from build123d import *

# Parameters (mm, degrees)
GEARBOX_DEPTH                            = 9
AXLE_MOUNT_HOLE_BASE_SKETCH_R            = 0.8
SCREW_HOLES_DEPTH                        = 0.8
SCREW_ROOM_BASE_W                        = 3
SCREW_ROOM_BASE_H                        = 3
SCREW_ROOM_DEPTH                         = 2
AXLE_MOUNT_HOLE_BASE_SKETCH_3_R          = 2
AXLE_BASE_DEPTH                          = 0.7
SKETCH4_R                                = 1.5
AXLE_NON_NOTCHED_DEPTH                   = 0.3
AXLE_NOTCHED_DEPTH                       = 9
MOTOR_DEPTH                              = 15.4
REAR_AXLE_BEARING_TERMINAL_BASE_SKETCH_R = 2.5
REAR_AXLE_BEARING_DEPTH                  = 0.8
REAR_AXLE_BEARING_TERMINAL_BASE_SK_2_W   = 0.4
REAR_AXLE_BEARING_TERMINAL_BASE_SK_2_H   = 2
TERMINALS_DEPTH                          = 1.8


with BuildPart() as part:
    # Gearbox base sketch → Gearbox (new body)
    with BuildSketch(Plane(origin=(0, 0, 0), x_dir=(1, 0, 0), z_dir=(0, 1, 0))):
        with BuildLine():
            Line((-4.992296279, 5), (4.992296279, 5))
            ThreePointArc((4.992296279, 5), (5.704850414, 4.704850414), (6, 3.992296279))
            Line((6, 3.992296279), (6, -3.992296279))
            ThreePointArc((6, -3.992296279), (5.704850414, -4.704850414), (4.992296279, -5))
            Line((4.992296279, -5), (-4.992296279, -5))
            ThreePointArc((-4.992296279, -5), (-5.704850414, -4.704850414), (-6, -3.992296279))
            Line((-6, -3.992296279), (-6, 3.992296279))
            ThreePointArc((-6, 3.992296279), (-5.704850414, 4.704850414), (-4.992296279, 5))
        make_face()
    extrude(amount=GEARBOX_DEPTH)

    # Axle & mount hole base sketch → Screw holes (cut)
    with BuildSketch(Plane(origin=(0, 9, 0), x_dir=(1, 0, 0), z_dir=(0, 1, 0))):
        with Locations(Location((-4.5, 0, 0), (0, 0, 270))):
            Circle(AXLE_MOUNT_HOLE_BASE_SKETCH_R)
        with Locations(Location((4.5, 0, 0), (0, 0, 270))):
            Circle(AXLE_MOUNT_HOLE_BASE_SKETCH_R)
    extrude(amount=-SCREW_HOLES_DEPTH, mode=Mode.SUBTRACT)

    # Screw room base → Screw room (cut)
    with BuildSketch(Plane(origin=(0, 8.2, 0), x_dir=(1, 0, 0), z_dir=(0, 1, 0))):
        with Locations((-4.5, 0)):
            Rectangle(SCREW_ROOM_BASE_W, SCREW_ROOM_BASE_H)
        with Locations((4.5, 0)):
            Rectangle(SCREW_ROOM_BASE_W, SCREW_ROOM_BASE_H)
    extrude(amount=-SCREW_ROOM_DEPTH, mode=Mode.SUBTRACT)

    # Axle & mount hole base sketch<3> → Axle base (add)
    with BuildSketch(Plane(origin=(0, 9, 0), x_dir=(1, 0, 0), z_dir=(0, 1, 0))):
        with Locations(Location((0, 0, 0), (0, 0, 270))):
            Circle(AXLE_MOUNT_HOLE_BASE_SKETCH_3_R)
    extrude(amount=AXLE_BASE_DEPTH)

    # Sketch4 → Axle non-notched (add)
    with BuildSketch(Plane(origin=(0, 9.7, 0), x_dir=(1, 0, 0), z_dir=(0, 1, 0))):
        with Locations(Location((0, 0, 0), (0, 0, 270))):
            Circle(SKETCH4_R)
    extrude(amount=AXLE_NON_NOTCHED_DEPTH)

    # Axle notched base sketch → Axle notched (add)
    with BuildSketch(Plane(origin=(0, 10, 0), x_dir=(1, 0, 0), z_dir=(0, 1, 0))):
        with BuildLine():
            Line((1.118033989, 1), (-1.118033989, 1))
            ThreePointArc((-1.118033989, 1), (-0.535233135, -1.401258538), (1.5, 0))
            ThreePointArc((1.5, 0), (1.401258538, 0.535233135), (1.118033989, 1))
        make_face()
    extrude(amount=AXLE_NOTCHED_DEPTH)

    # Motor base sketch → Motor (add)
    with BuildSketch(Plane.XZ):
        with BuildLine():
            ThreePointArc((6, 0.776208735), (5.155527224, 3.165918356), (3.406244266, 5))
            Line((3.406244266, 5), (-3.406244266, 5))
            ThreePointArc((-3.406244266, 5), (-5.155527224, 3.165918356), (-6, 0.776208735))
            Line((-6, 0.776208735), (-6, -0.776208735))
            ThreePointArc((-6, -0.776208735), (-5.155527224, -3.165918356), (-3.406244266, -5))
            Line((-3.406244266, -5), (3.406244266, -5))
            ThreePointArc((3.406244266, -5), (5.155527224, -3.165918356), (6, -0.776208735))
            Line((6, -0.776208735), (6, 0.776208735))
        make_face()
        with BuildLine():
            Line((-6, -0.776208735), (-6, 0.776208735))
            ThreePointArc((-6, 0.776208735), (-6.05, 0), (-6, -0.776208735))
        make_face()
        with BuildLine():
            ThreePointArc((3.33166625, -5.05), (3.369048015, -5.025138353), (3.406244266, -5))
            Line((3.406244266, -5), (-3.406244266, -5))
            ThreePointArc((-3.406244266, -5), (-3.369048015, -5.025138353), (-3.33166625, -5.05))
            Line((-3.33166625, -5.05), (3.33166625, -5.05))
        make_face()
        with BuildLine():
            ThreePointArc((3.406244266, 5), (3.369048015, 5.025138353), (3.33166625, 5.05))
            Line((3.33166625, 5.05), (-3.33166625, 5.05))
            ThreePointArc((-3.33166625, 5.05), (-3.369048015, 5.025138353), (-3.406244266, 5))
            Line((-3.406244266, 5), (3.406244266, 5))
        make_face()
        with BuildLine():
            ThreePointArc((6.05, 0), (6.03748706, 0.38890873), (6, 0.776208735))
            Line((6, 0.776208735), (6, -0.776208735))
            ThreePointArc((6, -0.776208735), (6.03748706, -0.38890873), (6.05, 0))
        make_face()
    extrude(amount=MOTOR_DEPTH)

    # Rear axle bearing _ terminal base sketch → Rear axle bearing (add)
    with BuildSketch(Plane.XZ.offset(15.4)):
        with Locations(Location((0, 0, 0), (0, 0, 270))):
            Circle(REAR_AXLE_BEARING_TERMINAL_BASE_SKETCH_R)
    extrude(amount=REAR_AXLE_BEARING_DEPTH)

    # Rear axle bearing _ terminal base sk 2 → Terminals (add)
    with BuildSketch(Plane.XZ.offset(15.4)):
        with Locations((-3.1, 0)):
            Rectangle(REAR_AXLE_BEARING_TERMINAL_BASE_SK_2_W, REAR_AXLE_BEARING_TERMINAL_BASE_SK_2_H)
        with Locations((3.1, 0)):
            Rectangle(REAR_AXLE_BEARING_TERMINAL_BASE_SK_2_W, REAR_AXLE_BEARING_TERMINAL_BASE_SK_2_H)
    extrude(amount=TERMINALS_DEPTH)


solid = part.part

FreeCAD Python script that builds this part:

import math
import FreeCAD as App
import Part
import Sketcher


def add_polygon(sketch, points):
    """Adds a closed chain of lines whose ends are joined by coincident constraints."""
    first, n = sketch.GeometryCount, len(points)
    for a, b in zip(points, points[1:] + points[:1]):
        sketch.addGeometry(Part.LineSegment(App.Vector(*a, 0), App.Vector(*b, 0)), False)
    for i in range(n):
        sketch.addConstraint(Sketcher.Constraint("Coincident", first + i, 2, first + (i + 1) % n, 1))

doc = App.newDocument("Part")
body = doc.addObject("PartDesign::Body", "Body")

# Sketch on XZ plane
sketch1 = doc.addObject("Sketcher::SketchObject", "Sketch")
body.addObject(sketch1)
sketch1.AttachmentSupport = (doc.XZ_Plane, [""])
sketch1.MapMode = "FlatFace"
sketch1.addGeometry(Part.LineSegment(App.Vector(4.992296, -5, 0), App.Vector(-4.992296, -5, 0)), False)
sketch1.addGeometry(Part.ArcOfCircle(Part.Circle(App.Vector(-4.992296, -3.992296, 0), App.Vector(0, 0, 1), 1.007704), math.radians(180), math.radians(270)), False)
sketch1.addGeometry(Part.LineSegment(App.Vector(-6, -3.992296, 0), App.Vector(-6, 3.992296, 0)), False)
sketch1.addGeometry(Part.ArcOfCircle(Part.Circle(App.Vector(-4.992296, 3.992296, 0), App.Vector(0, 0, 1), 1.007704), math.radians(90), math.radians(180)), False)
sketch1.addGeometry(Part.LineSegment(App.Vector(-4.992296, 5, 0), App.Vector(4.992296, 5, 0)), False)
sketch1.addGeometry(Part.ArcOfCircle(Part.Circle(App.Vector(4.992296, 3.992296, 0), App.Vector(0, 0, 1), 1.007704), math.radians(0), math.radians(90)), False)
sketch1.addGeometry(Part.LineSegment(App.Vector(6, 3.992296, 0), App.Vector(6, -3.992296, 0)), False)
sketch1.addGeometry(Part.ArcOfCircle(Part.Circle(App.Vector(4.992296, -3.992296, 0), App.Vector(0, 0, 1), 1.007704), math.radians(-90), math.radians(0)), False)
sketch1.addConstraint(Sketcher.Constraint("Tangent", 0, 2, 1, 2))
sketch1.addConstraint(Sketcher.Constraint("Tangent", 1, 1, 2, 1))
sketch1.addConstraint(Sketcher.Constraint("Tangent", 2, 2, 3, 2))
sketch1.addConstraint(Sketcher.Constraint("Tangent", 3, 1, 4, 1))
sketch1.addConstraint(Sketcher.Constraint("Tangent", 4, 2, 5, 2))
sketch1.addConstraint(Sketcher.Constraint("Tangent", 5, 1, 6, 1))
sketch1.addConstraint(Sketcher.Constraint("Tangent", 6, 2, 7, 2))
sketch1.addConstraint(Sketcher.Constraint("Tangent", 7, 1, 0, 1))
sketch1.addConstraint(Sketcher.Constraint("Horizontal", 0))
sketch1.addConstraint(Sketcher.Constraint("Vertical", 2))
sketch1.addConstraint(Sketcher.Constraint("Horizontal", 4))
sketch1.addConstraint(Sketcher.Constraint("Vertical", 6))
sketch1.addConstraint(Sketcher.Constraint("Equal", 1, 3))
sketch1.addConstraint(Sketcher.Constraint("Equal", 3, 5))
sketch1.addConstraint(Sketcher.Constraint("Equal", 5, 7))
sketch1.addConstraint(Sketcher.Constraint("Symmetric", 1, 3, 5, 3, -1, 1))
sketch1.addConstraint(Sketcher.Constraint("DistanceY", 0, 2, -1, 1, 5.0))
sketch1.addConstraint(Sketcher.Constraint("DistanceX", 1, 1, -1, 1, 6.0))
sketch1.addConstraint(Sketcher.Constraint("Radius", 1, 1.007704))
pad1 = doc.addObject("PartDesign::Pad", "Pad")
body.addObject(pad1)
pad1.Profile = sketch1
pad1.Length = 9
pad1.Reversed = True

# Sketch on XZ plane
sketch2 = doc.addObject("Sketcher::SketchObject", "Sketch001")
body.addObject(sketch2)
sketch2.AttachmentSupport = (doc.XZ_Plane, [""])
sketch2.MapMode = "FlatFace"
sketch2.AttachmentOffset = App.Placement(App.Vector(0, 0, -9), App.Rotation())
sketch2.addGeometry(Part.Circle(App.Vector(-4.5, 0, 0), App.Vector(0, 0, 1), 0.8), False)
sketch2.addGeometry(Part.Circle(App.Vector(4.5, 0, 0), App.Vector(0, 0, 1), 0.8), False)
sketch2.addConstraint(Sketcher.Constraint("Equal", 0, 1))
sketch2.addConstraint(Sketcher.Constraint("Symmetric", 0, 3, 1, 3, -1, 1))
sketch2.addConstraint(Sketcher.Constraint("PointOnObject", 0, 3, -1))
sketch2.addConstraint(Sketcher.Constraint("Diameter", 0, 1.6))
sketch2.addConstraint(Sketcher.Constraint("DistanceX", 0, 3, 1, 3, 9.0))
pocket1 = doc.addObject("PartDesign::Pocket", "Pocket")
body.addObject(pocket1)
pocket1.Profile = sketch2
pocket1.Length = 0.8
pocket1.Reversed = True

# Sketch on XZ plane
sketch3 = doc.addObject("Sketcher::SketchObject", "Sketch002")
body.addObject(sketch3)
sketch3.AttachmentSupport = (doc.XZ_Plane, [""])
sketch3.MapMode = "FlatFace"
sketch3.AttachmentOffset = App.Placement(App.Vector(0, 0, -8.2), App.Rotation())
add_polygon(sketch3, [(-6, -1.5), (-6, 1.5), (-3, 1.5), (-3, -1.5)])  # lines 0-3
add_polygon(sketch3, [(3, -1.5), (3, 1.5), (6, 1.5), (6, -1.5)])  # lines 4-7
sketch3.addConstraint(Sketcher.Constraint("Vertical", 0))
sketch3.addConstraint(Sketcher.Constraint("Horizontal", 1))
sketch3.addConstraint(Sketcher.Constraint("Vertical", 2))
sketch3.addConstraint(Sketcher.Constraint("Horizontal", 3))
sketch3.addConstraint(Sketcher.Constraint("Vertical", 4))
sketch3.addConstraint(Sketcher.Constraint("Horizontal", 5))
sketch3.addConstraint(Sketcher.Constraint("Vertical", 6))
sketch3.addConstraint(Sketcher.Constraint("Horizontal", 7))
sketch3.addConstraint(Sketcher.Constraint("Symmetric", 2, 2, 4, 2, -1, 1))
sketch3.addConstraint(Sketcher.Constraint("Symmetric", 0, 2, 6, 2, -1, 1))
sketch3.addConstraint(Sketcher.Constraint("Horizontal", 1, 2, 4, 2))
sketch3.addConstraint(Sketcher.Constraint("Equal", 7, 0))
sketch3.addConstraint(Sketcher.Constraint("DistanceX", 1, 1, 1, 2, 3.0))
sketch3.addConstraint(Sketcher.Constraint("DistanceX", 0, 2, -1, 1, 6.0))
pocket2 = doc.addObject("PartDesign::Pocket", "Pocket001")
body.addObject(pocket2)
pocket2.Profile = sketch3
pocket2.Length = 2
pocket2.Reversed = True

# Sketch on XZ plane
sketch4 = doc.addObject("Sketcher::SketchObject", "Sketch003")
body.addObject(sketch4)
sketch4.AttachmentSupport = (doc.XZ_Plane, [""])
sketch4.MapMode = "FlatFace"
sketch4.AttachmentOffset = App.Placement(App.Vector(0, 0, -9), App.Rotation())
sketch4.addGeometry(Part.Circle(App.Vector(0, 0, 0), App.Vector(0, 0, 1), 2), False)
sketch4.addConstraint(Sketcher.Constraint("Coincident", 0, 3, -1, 1))
sketch4.addConstraint(Sketcher.Constraint("Diameter", 0, 4.0))
pad2 = doc.addObject("PartDesign::Pad", "Pad001")
body.addObject(pad2)
pad2.Profile = sketch4
pad2.Length = 0.7
pad2.Reversed = True

# Sketch on XZ plane
sketch5 = doc.addObject("Sketcher::SketchObject", "Sketch004")
body.addObject(sketch5)
sketch5.AttachmentSupport = (doc.XZ_Plane, [""])
sketch5.MapMode = "FlatFace"
sketch5.AttachmentOffset = App.Placement(App.Vector(0, 0, -9.7), App.Rotation())
sketch5.addGeometry(Part.Circle(App.Vector(0, 0, 0), App.Vector(0, 0, 1), 1.5), False)
sketch5.addConstraint(Sketcher.Constraint("Coincident", 0, 3, -1, 1))
sketch5.addConstraint(Sketcher.Constraint("Diameter", 0, 3.0))
pad3 = doc.addObject("PartDesign::Pad", "Pad002")
body.addObject(pad3)
pad3.Profile = sketch5
pad3.Length = 0.3
pad3.Reversed = True

# Sketch on XZ plane
sketch6 = doc.addObject("Sketcher::SketchObject", "Sketch005")
body.addObject(sketch6)
sketch6.AttachmentSupport = (doc.XZ_Plane, [""])
sketch6.MapMode = "FlatFace"
sketch6.AttachmentOffset = App.Placement(App.Vector(0, 0, -10), App.Rotation())
sketch6.addGeometry(Part.LineSegment(App.Vector(1.118034, -1, 0), App.Vector(-1.118034, -1, 0)), False)
sketch6.addGeometry(Part.ArcOfCircle(Part.Circle(App.Vector(0, 0, 0), App.Vector(0, 0, 1), 1.5), math.radians(0), math.radians(221.810315)), False)
sketch6.addGeometry(Part.ArcOfCircle(Part.Circle(App.Vector(0, 0, 0), App.Vector(0, 0, 1), 1.5), math.radians(-41.810315), math.radians(0)), False)
sketch6.addConstraint(Sketcher.Constraint("Coincident", 0, 2, 1, 2))
sketch6.addConstraint(Sketcher.Constraint("Tangent", 1, 1, 2, 2))
sketch6.addConstraint(Sketcher.Constraint("Coincident", 2, 1, 0, 1))
sketch6.addConstraint(Sketcher.Constraint("Horizontal", 0))
sketch6.addConstraint(Sketcher.Constraint("Coincident", 1, 3, -1, 1))
sketch6.addConstraint(Sketcher.Constraint("Equal", 1, 2))
sketch6.addConstraint(Sketcher.Constraint("PointOnObject", 1, 1, -1))
sketch6.addConstraint(Sketcher.Constraint("Radius", 1, 1.5))
sketch6.addConstraint(Sketcher.Constraint("DistanceY", 0, 2, -1, 1, 1.0))
pad4 = doc.addObject("PartDesign::Pad", "Pad003")
body.addObject(pad4)
pad4.Profile = sketch6
pad4.Length = 9
pad4.Reversed = True

# Sketch on XZ plane
sketch7 = doc.addObject("Sketcher::SketchObject", "Sketch006")
body.addObject(sketch7)
sketch7.AttachmentSupport = (doc.XZ_Plane, [""])
sketch7.MapMode = "FlatFace"
sketch7.addGeometry(Part.ArcOfCircle(Part.Circle(App.Vector(0, 0, 0), App.Vector(0, 0, 1), 6.05), math.radians(7.371307), math.radians(55.735397)), False)
sketch7.addGeometry(Part.ArcOfCircle(Part.Circle(App.Vector(-0.000011, -0.000016, 0), App.Vector(0, 0, 1), 6.050019), math.radians(55.735398), math.radians(56.585729)), False)
sketch7.addGeometry(Part.LineSegment(App.Vector(3.331666, 5.05, 0), App.Vector(-3.331666, 5.05, 0)), False)
sketch7.addGeometry(Part.ArcOfCircle(Part.Circle(App.Vector(0.000011, -0.000016, 0), App.Vector(0, 0, 1), 6.050019), math.radians(123.414271), math.radians(124.264602)), False)
sketch7.addGeometry(Part.ArcOfCircle(Part.Circle(App.Vector(0, 0, 0), App.Vector(0, 0, 1), 6.05), math.radians(124.264603), math.radians(172.628693)), False)
sketch7.addGeometry(Part.ArcOfCircle(Part.Circle(App.Vector(0, 0, 0), App.Vector(0, 0, 1), 6.05), math.radians(172.628693), math.radians(187.371307)), False)
sketch7.addGeometry(Part.ArcOfCircle(Part.Circle(App.Vector(0, 0, 0), App.Vector(0, 0, 1), 6.05), math.radians(-172.628693), math.radians(-124.264603)), False)
sketch7.addGeometry(Part.ArcOfCircle(Part.Circle(App.Vector(0.000011, 0.000016, 0), App.Vector(0, 0, 1), 6.050019), math.radians(-124.264602), math.radians(-123.414271)), False)
sketch7.addGeometry(Part.LineSegment(App.Vector(-3.331666, -5.05, 0), App.Vector(3.331666, -5.05, 0)), False)
sketch7.addGeometry(Part.ArcOfCircle(Part.Circle(App.Vector(-0.000011, 0.000016, 0), App.Vector(0, 0, 1), 6.050019), math.radians(-56.585729), math.radians(-55.735398)), False)
sketch7.addGeometry(Part.ArcOfCircle(Part.Circle(App.Vector(0, 0, 0), App.Vector(0, 0, 1), 6.05), math.radians(-55.735397), math.radians(-7.371307)), False)
sketch7.addGeometry(Part.ArcOfCircle(Part.Circle(App.Vector(0, 0, 0), App.Vector(0, 0, 1), 6.05), math.radians(-7.371307), math.radians(0)), False)
sketch7.addGeometry(Part.ArcOfCircle(Part.Circle(App.Vector(0, 0, 0), App.Vector(0, 0, 1), 6.05), math.radians(0), math.radians(7.371307)), False)
sketch7.addConstraint(Sketcher.Constraint("Tangent", 0, 2, 1, 1))
sketch7.addConstraint(Sketcher.Constraint("Coincident", 1, 2, 2, 1))
sketch7.addConstraint(Sketcher.Constraint("Coincident", 2, 2, 3, 1))
sketch7.addConstraint(Sketcher.Constraint("Tangent", 3, 2, 4, 1))
sketch7.addConstraint(Sketcher.Constraint("Tangent", 4, 2, 5, 1))
sketch7.addConstraint(Sketcher.Constraint("Tangent", 5, 2, 6, 1))
sketch7.addConstraint(Sketcher.Constraint("Tangent", 6, 2, 7, 1))
sketch7.addConstraint(Sketcher.Constraint("Coincident", 7, 2, 8, 1))
sketch7.addConstraint(Sketcher.Constraint("Coincident", 8, 2, 9, 1))
sketch7.addConstraint(Sketcher.Constraint("Tangent", 9, 2, 10, 1))
sketch7.addConstraint(Sketcher.Constraint("Tangent", 10, 2, 11, 1))
sketch7.addConstraint(Sketcher.Constraint("Tangent", 11, 2, 12, 1))
sketch7.addConstraint(Sketcher.Constraint("Tangent", 12, 2, 0, 1))
sketch7.addConstraint(Sketcher.Constraint("Horizontal", 2))
sketch7.addConstraint(Sketcher.Constraint("Horizontal", 8))
sketch7.addConstraint(Sketcher.Constraint("Coincident", 0, 3, -1, 1))
sketch7.addConstraint(Sketcher.Constraint("Coincident", 4, 3, -1, 1))
sketch7.addConstraint(Sketcher.Constraint("Coincident", 6, 3, -1, 1))
sketch7.addConstraint(Sketcher.Constraint("Coincident", 10, 3, -1, 1))
sketch7.addConstraint(Sketcher.Constraint("Equal", 1, 3))
sketch7.addConstraint(Sketcher.Constraint("Equal", 0, 4))
sketch7.addConstraint(Sketcher.Constraint("Equal", 3, 7))
sketch7.addConstraint(Sketcher.Constraint("Equal", 7, 9))
sketch7.addConstraint(Sketcher.Constraint("Equal", 6, 10))
sketch7.addConstraint(Sketcher.Constraint("PointOnObject", 11, 2, -1))
sketch7.addConstraint(Sketcher.Constraint("Horizontal", 0, 2, 3, 2))
sketch7.addConstraint(Sketcher.Constraint("Horizontal", 6, 2, 9, 2))
sketch7.addConstraint(Sketcher.Constraint("Horizontal", 5, 2, 10, 2))
sketch7.addConstraint(Sketcher.Constraint("Horizontal", 4, 2, 12, 2))
sketch7.addConstraint(Sketcher.Constraint("Vertical", 4, 2, 5, 2))
sketch7.addConstraint(Sketcher.Constraint("Vertical", 3, 2, 6, 2))
sketch7.addConstraint(Sketcher.Constraint("Vertical", 2, 2, 7, 2))
sketch7.addConstraint(Sketcher.Constraint("Radius", 0, 6.05))
sketch7.addConstraint(Sketcher.Constraint("DistanceY", -1, 1, 0, 2, 5.0))
sketch7.addConstraint(Sketcher.Constraint("DistanceX", 4, 2, -1, 1, 6.0))
sketch7.addConstraint(Sketcher.Constraint("DistanceY", -1, 1, 1, 2, 5.05))
sketch7.addConstraint(Sketcher.Constraint("Radius", 1, 6.050019))
pad5 = doc.addObject("PartDesign::Pad", "Pad004")
body.addObject(pad5)
pad5.Profile = sketch7
pad5.Length = 15.4

# Sketch on XZ plane
sketch8 = doc.addObject("Sketcher::SketchObject", "Sketch007")
body.addObject(sketch8)
sketch8.AttachmentSupport = (doc.XZ_Plane, [""])
sketch8.MapMode = "FlatFace"
sketch8.AttachmentOffset = App.Placement(App.Vector(0, 0, 15.4), App.Rotation())
sketch8.addGeometry(Part.Circle(App.Vector(0, 0, 0), App.Vector(0, 0, 1), 2.5), False)
sketch8.addConstraint(Sketcher.Constraint("Coincident", 0, 3, -1, 1))
sketch8.addConstraint(Sketcher.Constraint("Diameter", 0, 5.0))
pad6 = doc.addObject("PartDesign::Pad", "Pad005")
body.addObject(pad6)
pad6.Profile = sketch8
pad6.Length = 0.8

# Sketch on XZ plane
sketch9 = doc.addObject("Sketcher::SketchObject", "Sketch008")
body.addObject(sketch9)
sketch9.AttachmentSupport = (doc.XZ_Plane, [""])
sketch9.MapMode = "FlatFace"
sketch9.AttachmentOffset = App.Placement(App.Vector(0, 0, 15.4), App.Rotation())
add_polygon(sketch9, [(-3.3, 1), (-3.3, -1), (-2.9, -1), (-2.9, 1)])  # lines 0-3
add_polygon(sketch9, [(2.9, 1), (2.9, -1), (3.3, -1), (3.3, 1)])  # lines 4-7
sketch9.addConstraint(Sketcher.Constraint("Vertical", 0))
sketch9.addConstraint(Sketcher.Constraint("Horizontal", 1))
sketch9.addConstraint(Sketcher.Constraint("Vertical", 2))
sketch9.addConstraint(Sketcher.Constraint("Horizontal", 3))
sketch9.addConstraint(Sketcher.Constraint("Vertical", 4))
sketch9.addConstraint(Sketcher.Constraint("Horizontal", 5))
sketch9.addConstraint(Sketcher.Constraint("Vertical", 6))
sketch9.addConstraint(Sketcher.Constraint("Horizontal", 7))
sketch9.addConstraint(Sketcher.Constraint("Symmetric", 2, 2, 4, 2, -1, 1))
sketch9.addConstraint(Sketcher.Constraint("Symmetric", 0, 2, 6, 2, -1, 1))
sketch9.addConstraint(Sketcher.Constraint("Horizontal", 1, 2, 4, 2))
sketch9.addConstraint(Sketcher.Constraint("DistanceY", 0, 2, 0, 1, 2.0))
sketch9.addConstraint(Sketcher.Constraint("DistanceX", 1, 1, 1, 2, 0.4))
sketch9.addConstraint(Sketcher.Constraint("DistanceX", 0, 2, -1, 1, 3.3))
pad7 = doc.addObject("PartDesign::Pad", "Pad006")
body.addObject(pad7)
pad7.Profile = sketch9
pad7.Length = 1.8

doc.recompute()
